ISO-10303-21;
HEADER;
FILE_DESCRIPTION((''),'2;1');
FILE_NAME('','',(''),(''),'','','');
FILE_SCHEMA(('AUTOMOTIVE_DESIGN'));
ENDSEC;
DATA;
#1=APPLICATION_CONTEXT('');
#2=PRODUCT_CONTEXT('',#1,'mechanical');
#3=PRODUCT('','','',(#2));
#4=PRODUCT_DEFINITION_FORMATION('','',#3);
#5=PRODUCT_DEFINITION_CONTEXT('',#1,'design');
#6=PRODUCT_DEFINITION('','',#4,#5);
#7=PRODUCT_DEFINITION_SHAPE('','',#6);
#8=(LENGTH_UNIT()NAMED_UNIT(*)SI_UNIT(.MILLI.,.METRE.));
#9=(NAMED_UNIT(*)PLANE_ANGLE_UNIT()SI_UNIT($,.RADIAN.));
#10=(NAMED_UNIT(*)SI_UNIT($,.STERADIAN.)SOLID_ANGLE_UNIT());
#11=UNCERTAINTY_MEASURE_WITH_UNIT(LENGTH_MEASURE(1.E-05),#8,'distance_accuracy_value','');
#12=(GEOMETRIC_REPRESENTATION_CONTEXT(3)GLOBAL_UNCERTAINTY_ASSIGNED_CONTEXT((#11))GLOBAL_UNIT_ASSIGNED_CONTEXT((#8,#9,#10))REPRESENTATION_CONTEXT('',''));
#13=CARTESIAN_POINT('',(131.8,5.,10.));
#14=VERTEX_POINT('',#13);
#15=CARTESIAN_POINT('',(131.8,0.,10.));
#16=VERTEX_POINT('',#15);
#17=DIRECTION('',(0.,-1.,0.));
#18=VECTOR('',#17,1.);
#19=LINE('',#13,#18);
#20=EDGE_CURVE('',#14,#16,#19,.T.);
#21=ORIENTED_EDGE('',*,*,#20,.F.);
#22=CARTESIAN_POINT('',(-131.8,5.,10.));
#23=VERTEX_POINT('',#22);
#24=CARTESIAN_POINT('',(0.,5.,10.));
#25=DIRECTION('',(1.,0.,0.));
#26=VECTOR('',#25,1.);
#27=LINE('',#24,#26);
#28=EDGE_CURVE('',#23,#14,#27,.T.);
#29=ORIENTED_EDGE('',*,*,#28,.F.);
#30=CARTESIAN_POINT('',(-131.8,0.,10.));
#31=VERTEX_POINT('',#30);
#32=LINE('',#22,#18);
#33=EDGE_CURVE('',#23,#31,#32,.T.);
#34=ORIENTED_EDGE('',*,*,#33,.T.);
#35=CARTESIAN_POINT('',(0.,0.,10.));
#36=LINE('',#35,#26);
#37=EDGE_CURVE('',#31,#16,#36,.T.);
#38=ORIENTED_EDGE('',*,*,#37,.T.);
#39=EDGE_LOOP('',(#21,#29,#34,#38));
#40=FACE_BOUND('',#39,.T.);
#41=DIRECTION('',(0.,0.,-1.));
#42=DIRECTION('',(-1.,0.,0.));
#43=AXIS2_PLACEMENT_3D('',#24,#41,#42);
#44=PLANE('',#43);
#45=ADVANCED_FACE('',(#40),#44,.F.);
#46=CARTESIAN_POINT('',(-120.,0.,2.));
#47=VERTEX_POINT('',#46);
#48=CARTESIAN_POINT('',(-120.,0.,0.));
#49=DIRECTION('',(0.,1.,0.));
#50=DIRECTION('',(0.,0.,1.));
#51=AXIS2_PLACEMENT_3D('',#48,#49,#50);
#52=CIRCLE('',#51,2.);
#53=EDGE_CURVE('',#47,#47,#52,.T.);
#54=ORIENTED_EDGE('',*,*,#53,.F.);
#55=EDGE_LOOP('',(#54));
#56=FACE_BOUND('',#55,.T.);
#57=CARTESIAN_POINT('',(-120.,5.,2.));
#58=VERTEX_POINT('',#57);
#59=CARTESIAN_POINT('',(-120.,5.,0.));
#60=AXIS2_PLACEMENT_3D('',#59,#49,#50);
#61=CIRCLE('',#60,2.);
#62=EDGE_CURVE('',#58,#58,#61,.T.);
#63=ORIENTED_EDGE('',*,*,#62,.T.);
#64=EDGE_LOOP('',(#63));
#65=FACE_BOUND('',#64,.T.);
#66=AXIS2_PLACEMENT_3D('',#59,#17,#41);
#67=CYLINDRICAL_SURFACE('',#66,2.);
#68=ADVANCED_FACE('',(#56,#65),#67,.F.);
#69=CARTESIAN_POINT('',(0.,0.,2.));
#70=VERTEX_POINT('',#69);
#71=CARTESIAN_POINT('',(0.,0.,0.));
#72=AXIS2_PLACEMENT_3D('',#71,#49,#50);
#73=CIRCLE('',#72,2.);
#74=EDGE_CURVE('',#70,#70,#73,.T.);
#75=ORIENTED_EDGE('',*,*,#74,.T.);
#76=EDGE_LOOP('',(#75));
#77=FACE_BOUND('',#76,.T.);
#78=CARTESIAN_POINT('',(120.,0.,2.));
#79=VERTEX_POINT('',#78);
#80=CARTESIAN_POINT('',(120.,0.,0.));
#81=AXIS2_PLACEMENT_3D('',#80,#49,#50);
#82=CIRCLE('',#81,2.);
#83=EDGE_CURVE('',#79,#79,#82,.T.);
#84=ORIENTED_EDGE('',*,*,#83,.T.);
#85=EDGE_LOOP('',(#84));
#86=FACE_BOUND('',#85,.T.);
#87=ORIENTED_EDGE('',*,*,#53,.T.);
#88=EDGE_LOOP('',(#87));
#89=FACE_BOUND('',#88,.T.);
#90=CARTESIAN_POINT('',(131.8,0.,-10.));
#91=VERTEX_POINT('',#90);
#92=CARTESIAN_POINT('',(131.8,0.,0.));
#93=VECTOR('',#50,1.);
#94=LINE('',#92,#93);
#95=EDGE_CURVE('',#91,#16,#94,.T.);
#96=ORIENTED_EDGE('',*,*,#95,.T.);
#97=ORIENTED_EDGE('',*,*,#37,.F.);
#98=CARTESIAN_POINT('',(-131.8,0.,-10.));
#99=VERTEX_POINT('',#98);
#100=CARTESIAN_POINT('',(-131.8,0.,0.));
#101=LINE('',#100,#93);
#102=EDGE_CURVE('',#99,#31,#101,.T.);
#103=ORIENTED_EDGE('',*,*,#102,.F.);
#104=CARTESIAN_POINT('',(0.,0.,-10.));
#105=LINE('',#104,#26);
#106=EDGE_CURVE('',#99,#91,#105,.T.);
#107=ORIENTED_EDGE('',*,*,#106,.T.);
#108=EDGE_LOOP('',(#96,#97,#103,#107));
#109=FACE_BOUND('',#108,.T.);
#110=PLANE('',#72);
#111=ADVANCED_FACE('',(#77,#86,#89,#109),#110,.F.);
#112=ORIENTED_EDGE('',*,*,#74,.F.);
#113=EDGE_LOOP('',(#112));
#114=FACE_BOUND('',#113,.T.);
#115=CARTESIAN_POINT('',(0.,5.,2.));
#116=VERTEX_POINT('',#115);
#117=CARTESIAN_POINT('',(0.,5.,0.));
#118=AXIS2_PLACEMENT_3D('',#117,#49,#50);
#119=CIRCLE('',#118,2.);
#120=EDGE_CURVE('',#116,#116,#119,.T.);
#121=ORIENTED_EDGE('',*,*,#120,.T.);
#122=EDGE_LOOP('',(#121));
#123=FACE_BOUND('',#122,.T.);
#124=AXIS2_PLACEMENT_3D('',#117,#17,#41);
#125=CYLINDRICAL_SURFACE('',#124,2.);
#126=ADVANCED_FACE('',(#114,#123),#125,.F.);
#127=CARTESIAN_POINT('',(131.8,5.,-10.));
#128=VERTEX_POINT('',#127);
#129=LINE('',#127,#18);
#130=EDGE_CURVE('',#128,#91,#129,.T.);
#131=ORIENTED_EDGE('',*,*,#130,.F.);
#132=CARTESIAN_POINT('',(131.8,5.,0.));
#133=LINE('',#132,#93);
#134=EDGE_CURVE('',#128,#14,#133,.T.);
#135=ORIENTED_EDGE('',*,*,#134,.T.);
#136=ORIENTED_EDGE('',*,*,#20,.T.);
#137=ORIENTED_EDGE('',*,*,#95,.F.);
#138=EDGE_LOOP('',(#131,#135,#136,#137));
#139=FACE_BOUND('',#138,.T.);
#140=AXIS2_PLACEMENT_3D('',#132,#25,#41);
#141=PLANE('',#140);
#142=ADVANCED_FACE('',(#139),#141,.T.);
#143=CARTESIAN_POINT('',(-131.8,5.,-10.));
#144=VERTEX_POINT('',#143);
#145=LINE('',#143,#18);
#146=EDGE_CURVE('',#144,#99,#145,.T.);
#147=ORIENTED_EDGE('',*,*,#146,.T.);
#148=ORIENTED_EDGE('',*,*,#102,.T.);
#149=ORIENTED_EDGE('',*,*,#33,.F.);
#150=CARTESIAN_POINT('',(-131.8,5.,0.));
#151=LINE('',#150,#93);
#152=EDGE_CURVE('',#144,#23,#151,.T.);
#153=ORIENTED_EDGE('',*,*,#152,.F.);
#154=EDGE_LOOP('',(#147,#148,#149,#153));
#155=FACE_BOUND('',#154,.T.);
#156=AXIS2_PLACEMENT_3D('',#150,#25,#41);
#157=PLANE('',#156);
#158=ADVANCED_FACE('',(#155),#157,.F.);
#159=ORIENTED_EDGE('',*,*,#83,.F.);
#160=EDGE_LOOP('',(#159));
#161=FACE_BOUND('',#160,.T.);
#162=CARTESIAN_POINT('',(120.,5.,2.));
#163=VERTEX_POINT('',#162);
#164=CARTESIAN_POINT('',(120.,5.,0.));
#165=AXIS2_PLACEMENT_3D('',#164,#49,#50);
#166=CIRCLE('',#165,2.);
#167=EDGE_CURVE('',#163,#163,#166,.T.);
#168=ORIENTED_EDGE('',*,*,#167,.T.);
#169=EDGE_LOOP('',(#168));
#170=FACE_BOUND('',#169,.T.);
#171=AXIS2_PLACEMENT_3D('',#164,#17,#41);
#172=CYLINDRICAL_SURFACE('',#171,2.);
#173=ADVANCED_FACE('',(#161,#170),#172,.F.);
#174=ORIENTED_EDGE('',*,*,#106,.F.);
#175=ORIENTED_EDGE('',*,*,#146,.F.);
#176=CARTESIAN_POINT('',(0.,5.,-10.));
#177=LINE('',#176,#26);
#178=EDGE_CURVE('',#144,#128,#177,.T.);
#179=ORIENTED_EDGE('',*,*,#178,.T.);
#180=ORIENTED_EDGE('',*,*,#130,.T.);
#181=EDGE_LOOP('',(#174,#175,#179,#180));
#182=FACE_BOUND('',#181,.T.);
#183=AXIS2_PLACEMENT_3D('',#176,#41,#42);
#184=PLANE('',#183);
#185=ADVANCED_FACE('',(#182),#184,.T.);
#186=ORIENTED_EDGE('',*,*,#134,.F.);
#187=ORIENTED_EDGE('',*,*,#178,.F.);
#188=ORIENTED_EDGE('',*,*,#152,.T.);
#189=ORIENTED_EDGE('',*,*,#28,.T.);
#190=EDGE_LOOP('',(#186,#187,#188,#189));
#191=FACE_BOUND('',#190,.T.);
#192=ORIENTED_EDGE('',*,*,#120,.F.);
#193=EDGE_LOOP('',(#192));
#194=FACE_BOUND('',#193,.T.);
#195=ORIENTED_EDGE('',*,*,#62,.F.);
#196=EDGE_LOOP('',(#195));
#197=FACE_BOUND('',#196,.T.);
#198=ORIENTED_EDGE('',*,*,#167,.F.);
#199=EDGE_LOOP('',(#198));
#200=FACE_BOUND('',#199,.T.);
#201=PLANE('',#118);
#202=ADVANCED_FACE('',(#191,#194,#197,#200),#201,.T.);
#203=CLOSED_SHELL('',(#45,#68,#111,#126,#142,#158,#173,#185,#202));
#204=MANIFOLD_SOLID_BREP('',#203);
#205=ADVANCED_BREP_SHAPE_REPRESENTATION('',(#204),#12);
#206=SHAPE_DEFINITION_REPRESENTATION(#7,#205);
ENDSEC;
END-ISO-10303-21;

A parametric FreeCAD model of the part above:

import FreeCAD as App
import Part
import Sketcher
from FreeCAD import Vector

doc = App.newDocument("Part")
params = doc.addObject("Spreadsheet::Sheet", "Params")
for row, (alias, value) in enumerate([
    ("sketch1_diameter", "4 mm"),
    ("sketch1_height", "20 mm"),
    ("sketch1_width", "263.6 mm"),
    ("pad1_length", "5 mm"),
], start=1):
    params.set(f"A{row}", alias)
    params.set(f"B{row}", "=" + value)
    params.setAlias(f"B{row}", alias)

body = doc.addObject("PartDesign::Body", "Body")

# Sketch on XZ plane
sketch1 = body.newObject("Sketcher::SketchObject", "Sketch")
sketch1.AttachmentSupport = (doc.getObject("XZ_Plane"), [""])
sketch1.MapMode = "FlatFace"
sketch1.addGeometry([
    Part.LineSegment(Vector(-131.8, -10, 0), Vector(-131.8, 10, 0)),  # 0
    Part.LineSegment(Vector(-131.8, 10, 0), Vector(131.8, 10, 0)),  # 1
    Part.LineSegment(Vector(131.8, 10, 0), Vector(131.8, -10, 0)),  # 2
    Part.LineSegment(Vector(131.8, -10, 0), Vector(-131.8, -10, 0)),  # 3
    Part.Circle(Vector(-120, 0, 0), Vector(0, 0, 1), 2),  # 4
    Part.Circle(Vector(0, 0, 0), Vector(0, 0, 1), 2),  # 5
    Part.Circle(Vector(120, 0, 0), Vector(0, 0, 1), 2),  # 6
], False)
sketch1.addConstraint([
    Sketcher.Constraint("Coincident", 0, 2, 1, 1),
    Sketcher.Constraint("Coincident", 1, 2, 2, 1),
    Sketcher.Constraint("Coincident", 2, 2, 3, 1),
    Sketcher.Constraint("Coincident", 3, 2, 0, 1),
    Sketcher.Constraint("Vertical", 0),
    Sketcher.Constraint("Horizontal", 1),
    Sketcher.Constraint("Vertical", 2),
    Sketcher.Constraint("Horizontal", 3),
    Sketcher.Constraint("Coincident", 5, 3, -1, 1),
    Sketcher.Constraint("Equal", 4, 5),
    Sketcher.Constraint("Equal", 5, 6),
    Sketcher.Constraint("Symmetric", 4, 3, 6, 3, -1, 1),
    Sketcher.Constraint("Symmetric", 0, 2, 2, 2, -1, 1),
    Sketcher.Constraint("PointOnObject", 4, 3, -1),
    Sketcher.Constraint("Diameter", 4, 4.0),
    Sketcher.Constraint("DistanceY", 0, 1, 0, 2, 20.0),
    Sketcher.Constraint("DistanceX", 1, 1, 1, 2, 263.6),
    Sketcher.Constraint("DistanceX", 4, 3, -1, 1, 120.0),
])
sketch1.setExpression("Constraints[14]", "Params.sketch1_diameter")
sketch1.setExpression("Constraints[15]", "Params.sketch1_height")
sketch1.setExpression("Constraints[16]", "Params.sketch1_width")
pad1 = body.newObject("PartDesign::Pad", "Pad")
pad1.Profile = sketch1
pad1.setExpression("Length", "Params.pad1_length")
pad1.Reversed = True

doc.recompute()
